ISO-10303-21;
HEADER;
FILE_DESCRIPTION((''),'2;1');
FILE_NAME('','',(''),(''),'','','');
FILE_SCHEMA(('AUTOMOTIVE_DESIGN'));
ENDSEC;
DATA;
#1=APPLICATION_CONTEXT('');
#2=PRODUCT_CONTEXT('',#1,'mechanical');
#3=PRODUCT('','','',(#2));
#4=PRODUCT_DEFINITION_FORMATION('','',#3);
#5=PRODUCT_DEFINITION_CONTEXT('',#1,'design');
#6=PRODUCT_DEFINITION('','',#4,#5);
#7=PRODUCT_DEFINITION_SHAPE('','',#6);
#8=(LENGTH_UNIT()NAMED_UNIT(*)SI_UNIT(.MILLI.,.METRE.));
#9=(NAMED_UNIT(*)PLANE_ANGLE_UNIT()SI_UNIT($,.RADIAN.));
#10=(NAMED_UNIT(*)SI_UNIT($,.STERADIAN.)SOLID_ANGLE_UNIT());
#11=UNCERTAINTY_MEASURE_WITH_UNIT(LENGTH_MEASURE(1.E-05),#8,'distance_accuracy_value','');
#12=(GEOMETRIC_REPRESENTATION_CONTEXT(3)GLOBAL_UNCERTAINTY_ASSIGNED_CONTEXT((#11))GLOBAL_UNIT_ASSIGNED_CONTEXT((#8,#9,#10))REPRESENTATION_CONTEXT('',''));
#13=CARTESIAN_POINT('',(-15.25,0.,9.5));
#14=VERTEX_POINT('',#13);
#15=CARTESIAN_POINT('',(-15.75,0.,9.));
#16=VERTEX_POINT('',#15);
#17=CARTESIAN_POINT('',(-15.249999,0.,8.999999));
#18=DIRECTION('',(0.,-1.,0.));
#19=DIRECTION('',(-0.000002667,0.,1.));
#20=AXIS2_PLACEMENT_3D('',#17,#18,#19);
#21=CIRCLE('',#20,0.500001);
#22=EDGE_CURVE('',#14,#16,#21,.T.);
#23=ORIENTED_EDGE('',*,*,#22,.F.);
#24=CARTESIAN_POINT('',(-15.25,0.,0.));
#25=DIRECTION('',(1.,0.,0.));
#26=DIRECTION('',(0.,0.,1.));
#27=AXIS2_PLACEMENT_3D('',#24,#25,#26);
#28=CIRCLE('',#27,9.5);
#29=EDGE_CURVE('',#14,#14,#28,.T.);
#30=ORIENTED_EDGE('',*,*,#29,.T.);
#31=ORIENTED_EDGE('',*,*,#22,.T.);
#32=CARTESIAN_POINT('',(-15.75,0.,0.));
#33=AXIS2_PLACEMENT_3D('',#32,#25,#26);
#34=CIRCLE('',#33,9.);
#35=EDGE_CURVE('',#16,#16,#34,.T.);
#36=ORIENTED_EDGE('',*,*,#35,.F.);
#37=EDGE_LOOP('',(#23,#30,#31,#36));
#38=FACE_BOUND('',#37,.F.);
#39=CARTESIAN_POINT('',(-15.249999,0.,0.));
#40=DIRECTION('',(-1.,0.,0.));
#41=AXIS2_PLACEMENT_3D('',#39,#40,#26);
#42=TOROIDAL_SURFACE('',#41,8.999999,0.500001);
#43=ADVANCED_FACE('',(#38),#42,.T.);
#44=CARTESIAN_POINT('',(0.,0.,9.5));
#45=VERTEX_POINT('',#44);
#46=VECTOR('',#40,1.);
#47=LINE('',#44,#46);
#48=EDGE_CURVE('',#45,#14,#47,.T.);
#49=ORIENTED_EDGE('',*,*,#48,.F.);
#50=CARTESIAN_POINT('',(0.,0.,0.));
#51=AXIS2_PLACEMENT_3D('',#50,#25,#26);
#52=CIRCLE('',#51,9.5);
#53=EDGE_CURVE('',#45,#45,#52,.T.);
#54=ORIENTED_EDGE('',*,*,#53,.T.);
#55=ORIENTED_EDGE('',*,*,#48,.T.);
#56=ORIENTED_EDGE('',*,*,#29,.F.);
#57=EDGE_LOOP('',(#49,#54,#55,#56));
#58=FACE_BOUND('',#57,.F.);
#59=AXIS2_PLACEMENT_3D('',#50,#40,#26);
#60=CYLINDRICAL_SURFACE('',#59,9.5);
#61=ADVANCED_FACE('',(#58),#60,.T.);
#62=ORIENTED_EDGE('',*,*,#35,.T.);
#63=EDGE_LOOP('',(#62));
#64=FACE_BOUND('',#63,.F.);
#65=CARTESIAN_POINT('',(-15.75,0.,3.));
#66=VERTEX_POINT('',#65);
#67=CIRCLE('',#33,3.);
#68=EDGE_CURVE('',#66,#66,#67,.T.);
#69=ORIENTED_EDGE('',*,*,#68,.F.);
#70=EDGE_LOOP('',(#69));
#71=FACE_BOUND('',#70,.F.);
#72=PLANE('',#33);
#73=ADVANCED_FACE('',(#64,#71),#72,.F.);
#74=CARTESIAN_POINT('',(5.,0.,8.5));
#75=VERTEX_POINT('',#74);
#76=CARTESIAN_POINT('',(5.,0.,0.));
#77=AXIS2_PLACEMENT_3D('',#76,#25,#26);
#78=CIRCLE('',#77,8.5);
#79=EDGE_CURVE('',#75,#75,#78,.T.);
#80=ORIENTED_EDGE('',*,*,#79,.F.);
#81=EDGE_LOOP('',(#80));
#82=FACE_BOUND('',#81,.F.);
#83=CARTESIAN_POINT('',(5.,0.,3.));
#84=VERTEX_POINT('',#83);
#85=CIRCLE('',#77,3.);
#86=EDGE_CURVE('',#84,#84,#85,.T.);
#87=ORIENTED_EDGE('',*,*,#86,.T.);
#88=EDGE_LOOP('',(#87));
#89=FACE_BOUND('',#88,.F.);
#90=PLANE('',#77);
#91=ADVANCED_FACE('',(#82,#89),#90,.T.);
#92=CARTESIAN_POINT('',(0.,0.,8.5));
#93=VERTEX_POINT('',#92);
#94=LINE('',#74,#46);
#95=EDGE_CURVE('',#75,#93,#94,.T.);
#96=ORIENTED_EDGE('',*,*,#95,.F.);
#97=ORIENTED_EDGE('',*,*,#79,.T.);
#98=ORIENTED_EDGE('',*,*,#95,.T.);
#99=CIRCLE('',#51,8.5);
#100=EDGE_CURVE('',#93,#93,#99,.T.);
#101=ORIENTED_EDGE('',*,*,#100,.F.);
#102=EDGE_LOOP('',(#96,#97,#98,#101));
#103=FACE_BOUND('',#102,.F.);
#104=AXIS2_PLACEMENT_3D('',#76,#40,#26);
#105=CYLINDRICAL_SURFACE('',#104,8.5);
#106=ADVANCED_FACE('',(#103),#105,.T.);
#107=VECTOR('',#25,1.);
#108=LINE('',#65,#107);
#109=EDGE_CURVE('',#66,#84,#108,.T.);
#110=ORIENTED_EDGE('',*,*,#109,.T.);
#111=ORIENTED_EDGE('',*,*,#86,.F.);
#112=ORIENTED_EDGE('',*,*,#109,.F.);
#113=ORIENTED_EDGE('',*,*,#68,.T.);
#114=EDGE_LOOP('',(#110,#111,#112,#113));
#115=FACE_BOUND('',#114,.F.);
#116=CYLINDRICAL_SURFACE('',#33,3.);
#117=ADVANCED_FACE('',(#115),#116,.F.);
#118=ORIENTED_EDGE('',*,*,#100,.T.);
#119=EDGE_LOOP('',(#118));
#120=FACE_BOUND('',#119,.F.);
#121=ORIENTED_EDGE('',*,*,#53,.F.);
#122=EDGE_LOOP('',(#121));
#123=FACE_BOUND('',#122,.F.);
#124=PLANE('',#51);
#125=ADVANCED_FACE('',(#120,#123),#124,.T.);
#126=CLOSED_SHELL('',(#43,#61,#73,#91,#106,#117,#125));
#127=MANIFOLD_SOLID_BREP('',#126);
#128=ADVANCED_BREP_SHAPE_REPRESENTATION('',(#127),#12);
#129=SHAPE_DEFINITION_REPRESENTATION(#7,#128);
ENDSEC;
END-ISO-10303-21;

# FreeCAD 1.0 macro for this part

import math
import FreeCAD as App
import Part
import Sketcher

V = App.Vector
Q = App.Units.Quantity

doc = App.newDocument("Part")
params = doc.addObject("Spreadsheet::Sheet", "Params")
for row, (alias, value) in enumerate([
    ("sketch1_radius", "0.500001 mm"),
    ("sketch1_width", "5 mm"),
    ("sketch1_height", "6 mm"),
    ("sketch1_height2", "1 mm"),
    ("sketch1_height3", "5.5 mm"),
    ("revolution_angle", "360 deg"),
], start=1):
    params.set(f"A{row}", alias)
    params.set(f"B{row}", "=" + value)
    params.setAlias(f"B{row}", alias)

body = doc.addObject("PartDesign::Body", "Body")

# Sketch on XZ plane
sketch1 = body.newObject("Sketcher::SketchObject", "Sketch")
sketch1.AttachmentSupport = (doc.getObject("XZ_Plane"), [""])
sketch1.MapMode = "FlatFace"
sketch1.addGeometry([
    Part.LineSegment(V(0, 9.5, 0), V(-15.2, 9.5, 0)),  # 0
    Part.ArcOfCircle(Part.Circle(V(-15.2, 9, 0), V(0, 0, 1), 0.5), math.radians(90), math.radians(180)),  # 1
    Part.LineSegment(V(-15.8, 9, 0), V(-15.8, 3, 0)),  # 2
    Part.LineSegment(V(-15.8, 3, 0), V(5, 3, 0)),  # 3
    Part.LineSegment(V(5, 3, 0), V(5, 8.5, 0)),  # 4
    Part.LineSegment(V(5, 8.5, 0), V(0, 8.5, 0)),  # 5
    Part.LineSegment(V(0, 8.5, 0), V(0, 9.5, 0)),  # 6
], False)
sketch1.addConstraint([
    Sketcher.Constraint("Coincident", 0, 2, 1, 1),
    Sketcher.Constraint("Coincident", 1, 2, 2, 1),
    Sketcher.Constraint("Coincident", 2, 2, 3, 1),
    Sketcher.Constraint("Coincident", 3, 2, 4, 1),
    Sketcher.Constraint("Coincident", 4, 2, 5, 1),
    Sketcher.Constraint("Coincident", 5, 2, 6, 1),
    Sketcher.Constraint("Coincident", 6, 2, 0, 1),
    Sketcher.Constraint("Horizontal", 0),
    Sketcher.Constraint("Vertical", 2),
    Sketcher.Constraint("Horizontal", 3),
    Sketcher.Constraint("Vertical", 4),
    Sketcher.Constraint("Horizontal", 5),
    Sketcher.Constraint("Vertical", 6),
    Sketcher.Constraint("PointOnObject", 5, 2, -2),
    Sketcher.Constraint("Vertical", 1, 3, 0, 2),
    Sketcher.Constraint("Radius", 1, Q("0.500001 mm")),
    Sketcher.Constraint("DistanceX", 5, 2, 5, 1, Q("5 mm")),
    Sketcher.Constraint("DistanceY", 2, 2, 2, 1, Q("6 mm")),
    Sketcher.Constraint("DistanceY", 6, 1, 6, 2, Q("1 mm")),
    Sketcher.Constraint("DistanceY", 4, 1, 4, 2, Q("5.5 mm")),
    Sketcher.Constraint("DistanceY", -1, 1, 1, 3, Q("8.999999 mm")),
    Sketcher.Constraint("DistanceX", 0, 2, 0, 1, Q("15.25 mm")),
])
sketch1.setExpression("Constraints[15]", "Params.sketch1_radius")
sketch1.setExpression("Constraints[16]", "Params.sketch1_width")
sketch1.setExpression("Constraints[17]", "Params.sketch1_height")
sketch1.setExpression("Constraints[18]", "Params.sketch1_height2")
sketch1.setExpression("Constraints[19]", "Params.sketch1_height3")
revolution = body.newObject("PartDesign::Revolution", "Revolution")
revolution.Profile = sketch1
revolution.ReferenceAxis = (sketch1, ["H_Axis"])
revolution.setExpression("Angle", "Params.revolution_angle")

doc.recompute()
